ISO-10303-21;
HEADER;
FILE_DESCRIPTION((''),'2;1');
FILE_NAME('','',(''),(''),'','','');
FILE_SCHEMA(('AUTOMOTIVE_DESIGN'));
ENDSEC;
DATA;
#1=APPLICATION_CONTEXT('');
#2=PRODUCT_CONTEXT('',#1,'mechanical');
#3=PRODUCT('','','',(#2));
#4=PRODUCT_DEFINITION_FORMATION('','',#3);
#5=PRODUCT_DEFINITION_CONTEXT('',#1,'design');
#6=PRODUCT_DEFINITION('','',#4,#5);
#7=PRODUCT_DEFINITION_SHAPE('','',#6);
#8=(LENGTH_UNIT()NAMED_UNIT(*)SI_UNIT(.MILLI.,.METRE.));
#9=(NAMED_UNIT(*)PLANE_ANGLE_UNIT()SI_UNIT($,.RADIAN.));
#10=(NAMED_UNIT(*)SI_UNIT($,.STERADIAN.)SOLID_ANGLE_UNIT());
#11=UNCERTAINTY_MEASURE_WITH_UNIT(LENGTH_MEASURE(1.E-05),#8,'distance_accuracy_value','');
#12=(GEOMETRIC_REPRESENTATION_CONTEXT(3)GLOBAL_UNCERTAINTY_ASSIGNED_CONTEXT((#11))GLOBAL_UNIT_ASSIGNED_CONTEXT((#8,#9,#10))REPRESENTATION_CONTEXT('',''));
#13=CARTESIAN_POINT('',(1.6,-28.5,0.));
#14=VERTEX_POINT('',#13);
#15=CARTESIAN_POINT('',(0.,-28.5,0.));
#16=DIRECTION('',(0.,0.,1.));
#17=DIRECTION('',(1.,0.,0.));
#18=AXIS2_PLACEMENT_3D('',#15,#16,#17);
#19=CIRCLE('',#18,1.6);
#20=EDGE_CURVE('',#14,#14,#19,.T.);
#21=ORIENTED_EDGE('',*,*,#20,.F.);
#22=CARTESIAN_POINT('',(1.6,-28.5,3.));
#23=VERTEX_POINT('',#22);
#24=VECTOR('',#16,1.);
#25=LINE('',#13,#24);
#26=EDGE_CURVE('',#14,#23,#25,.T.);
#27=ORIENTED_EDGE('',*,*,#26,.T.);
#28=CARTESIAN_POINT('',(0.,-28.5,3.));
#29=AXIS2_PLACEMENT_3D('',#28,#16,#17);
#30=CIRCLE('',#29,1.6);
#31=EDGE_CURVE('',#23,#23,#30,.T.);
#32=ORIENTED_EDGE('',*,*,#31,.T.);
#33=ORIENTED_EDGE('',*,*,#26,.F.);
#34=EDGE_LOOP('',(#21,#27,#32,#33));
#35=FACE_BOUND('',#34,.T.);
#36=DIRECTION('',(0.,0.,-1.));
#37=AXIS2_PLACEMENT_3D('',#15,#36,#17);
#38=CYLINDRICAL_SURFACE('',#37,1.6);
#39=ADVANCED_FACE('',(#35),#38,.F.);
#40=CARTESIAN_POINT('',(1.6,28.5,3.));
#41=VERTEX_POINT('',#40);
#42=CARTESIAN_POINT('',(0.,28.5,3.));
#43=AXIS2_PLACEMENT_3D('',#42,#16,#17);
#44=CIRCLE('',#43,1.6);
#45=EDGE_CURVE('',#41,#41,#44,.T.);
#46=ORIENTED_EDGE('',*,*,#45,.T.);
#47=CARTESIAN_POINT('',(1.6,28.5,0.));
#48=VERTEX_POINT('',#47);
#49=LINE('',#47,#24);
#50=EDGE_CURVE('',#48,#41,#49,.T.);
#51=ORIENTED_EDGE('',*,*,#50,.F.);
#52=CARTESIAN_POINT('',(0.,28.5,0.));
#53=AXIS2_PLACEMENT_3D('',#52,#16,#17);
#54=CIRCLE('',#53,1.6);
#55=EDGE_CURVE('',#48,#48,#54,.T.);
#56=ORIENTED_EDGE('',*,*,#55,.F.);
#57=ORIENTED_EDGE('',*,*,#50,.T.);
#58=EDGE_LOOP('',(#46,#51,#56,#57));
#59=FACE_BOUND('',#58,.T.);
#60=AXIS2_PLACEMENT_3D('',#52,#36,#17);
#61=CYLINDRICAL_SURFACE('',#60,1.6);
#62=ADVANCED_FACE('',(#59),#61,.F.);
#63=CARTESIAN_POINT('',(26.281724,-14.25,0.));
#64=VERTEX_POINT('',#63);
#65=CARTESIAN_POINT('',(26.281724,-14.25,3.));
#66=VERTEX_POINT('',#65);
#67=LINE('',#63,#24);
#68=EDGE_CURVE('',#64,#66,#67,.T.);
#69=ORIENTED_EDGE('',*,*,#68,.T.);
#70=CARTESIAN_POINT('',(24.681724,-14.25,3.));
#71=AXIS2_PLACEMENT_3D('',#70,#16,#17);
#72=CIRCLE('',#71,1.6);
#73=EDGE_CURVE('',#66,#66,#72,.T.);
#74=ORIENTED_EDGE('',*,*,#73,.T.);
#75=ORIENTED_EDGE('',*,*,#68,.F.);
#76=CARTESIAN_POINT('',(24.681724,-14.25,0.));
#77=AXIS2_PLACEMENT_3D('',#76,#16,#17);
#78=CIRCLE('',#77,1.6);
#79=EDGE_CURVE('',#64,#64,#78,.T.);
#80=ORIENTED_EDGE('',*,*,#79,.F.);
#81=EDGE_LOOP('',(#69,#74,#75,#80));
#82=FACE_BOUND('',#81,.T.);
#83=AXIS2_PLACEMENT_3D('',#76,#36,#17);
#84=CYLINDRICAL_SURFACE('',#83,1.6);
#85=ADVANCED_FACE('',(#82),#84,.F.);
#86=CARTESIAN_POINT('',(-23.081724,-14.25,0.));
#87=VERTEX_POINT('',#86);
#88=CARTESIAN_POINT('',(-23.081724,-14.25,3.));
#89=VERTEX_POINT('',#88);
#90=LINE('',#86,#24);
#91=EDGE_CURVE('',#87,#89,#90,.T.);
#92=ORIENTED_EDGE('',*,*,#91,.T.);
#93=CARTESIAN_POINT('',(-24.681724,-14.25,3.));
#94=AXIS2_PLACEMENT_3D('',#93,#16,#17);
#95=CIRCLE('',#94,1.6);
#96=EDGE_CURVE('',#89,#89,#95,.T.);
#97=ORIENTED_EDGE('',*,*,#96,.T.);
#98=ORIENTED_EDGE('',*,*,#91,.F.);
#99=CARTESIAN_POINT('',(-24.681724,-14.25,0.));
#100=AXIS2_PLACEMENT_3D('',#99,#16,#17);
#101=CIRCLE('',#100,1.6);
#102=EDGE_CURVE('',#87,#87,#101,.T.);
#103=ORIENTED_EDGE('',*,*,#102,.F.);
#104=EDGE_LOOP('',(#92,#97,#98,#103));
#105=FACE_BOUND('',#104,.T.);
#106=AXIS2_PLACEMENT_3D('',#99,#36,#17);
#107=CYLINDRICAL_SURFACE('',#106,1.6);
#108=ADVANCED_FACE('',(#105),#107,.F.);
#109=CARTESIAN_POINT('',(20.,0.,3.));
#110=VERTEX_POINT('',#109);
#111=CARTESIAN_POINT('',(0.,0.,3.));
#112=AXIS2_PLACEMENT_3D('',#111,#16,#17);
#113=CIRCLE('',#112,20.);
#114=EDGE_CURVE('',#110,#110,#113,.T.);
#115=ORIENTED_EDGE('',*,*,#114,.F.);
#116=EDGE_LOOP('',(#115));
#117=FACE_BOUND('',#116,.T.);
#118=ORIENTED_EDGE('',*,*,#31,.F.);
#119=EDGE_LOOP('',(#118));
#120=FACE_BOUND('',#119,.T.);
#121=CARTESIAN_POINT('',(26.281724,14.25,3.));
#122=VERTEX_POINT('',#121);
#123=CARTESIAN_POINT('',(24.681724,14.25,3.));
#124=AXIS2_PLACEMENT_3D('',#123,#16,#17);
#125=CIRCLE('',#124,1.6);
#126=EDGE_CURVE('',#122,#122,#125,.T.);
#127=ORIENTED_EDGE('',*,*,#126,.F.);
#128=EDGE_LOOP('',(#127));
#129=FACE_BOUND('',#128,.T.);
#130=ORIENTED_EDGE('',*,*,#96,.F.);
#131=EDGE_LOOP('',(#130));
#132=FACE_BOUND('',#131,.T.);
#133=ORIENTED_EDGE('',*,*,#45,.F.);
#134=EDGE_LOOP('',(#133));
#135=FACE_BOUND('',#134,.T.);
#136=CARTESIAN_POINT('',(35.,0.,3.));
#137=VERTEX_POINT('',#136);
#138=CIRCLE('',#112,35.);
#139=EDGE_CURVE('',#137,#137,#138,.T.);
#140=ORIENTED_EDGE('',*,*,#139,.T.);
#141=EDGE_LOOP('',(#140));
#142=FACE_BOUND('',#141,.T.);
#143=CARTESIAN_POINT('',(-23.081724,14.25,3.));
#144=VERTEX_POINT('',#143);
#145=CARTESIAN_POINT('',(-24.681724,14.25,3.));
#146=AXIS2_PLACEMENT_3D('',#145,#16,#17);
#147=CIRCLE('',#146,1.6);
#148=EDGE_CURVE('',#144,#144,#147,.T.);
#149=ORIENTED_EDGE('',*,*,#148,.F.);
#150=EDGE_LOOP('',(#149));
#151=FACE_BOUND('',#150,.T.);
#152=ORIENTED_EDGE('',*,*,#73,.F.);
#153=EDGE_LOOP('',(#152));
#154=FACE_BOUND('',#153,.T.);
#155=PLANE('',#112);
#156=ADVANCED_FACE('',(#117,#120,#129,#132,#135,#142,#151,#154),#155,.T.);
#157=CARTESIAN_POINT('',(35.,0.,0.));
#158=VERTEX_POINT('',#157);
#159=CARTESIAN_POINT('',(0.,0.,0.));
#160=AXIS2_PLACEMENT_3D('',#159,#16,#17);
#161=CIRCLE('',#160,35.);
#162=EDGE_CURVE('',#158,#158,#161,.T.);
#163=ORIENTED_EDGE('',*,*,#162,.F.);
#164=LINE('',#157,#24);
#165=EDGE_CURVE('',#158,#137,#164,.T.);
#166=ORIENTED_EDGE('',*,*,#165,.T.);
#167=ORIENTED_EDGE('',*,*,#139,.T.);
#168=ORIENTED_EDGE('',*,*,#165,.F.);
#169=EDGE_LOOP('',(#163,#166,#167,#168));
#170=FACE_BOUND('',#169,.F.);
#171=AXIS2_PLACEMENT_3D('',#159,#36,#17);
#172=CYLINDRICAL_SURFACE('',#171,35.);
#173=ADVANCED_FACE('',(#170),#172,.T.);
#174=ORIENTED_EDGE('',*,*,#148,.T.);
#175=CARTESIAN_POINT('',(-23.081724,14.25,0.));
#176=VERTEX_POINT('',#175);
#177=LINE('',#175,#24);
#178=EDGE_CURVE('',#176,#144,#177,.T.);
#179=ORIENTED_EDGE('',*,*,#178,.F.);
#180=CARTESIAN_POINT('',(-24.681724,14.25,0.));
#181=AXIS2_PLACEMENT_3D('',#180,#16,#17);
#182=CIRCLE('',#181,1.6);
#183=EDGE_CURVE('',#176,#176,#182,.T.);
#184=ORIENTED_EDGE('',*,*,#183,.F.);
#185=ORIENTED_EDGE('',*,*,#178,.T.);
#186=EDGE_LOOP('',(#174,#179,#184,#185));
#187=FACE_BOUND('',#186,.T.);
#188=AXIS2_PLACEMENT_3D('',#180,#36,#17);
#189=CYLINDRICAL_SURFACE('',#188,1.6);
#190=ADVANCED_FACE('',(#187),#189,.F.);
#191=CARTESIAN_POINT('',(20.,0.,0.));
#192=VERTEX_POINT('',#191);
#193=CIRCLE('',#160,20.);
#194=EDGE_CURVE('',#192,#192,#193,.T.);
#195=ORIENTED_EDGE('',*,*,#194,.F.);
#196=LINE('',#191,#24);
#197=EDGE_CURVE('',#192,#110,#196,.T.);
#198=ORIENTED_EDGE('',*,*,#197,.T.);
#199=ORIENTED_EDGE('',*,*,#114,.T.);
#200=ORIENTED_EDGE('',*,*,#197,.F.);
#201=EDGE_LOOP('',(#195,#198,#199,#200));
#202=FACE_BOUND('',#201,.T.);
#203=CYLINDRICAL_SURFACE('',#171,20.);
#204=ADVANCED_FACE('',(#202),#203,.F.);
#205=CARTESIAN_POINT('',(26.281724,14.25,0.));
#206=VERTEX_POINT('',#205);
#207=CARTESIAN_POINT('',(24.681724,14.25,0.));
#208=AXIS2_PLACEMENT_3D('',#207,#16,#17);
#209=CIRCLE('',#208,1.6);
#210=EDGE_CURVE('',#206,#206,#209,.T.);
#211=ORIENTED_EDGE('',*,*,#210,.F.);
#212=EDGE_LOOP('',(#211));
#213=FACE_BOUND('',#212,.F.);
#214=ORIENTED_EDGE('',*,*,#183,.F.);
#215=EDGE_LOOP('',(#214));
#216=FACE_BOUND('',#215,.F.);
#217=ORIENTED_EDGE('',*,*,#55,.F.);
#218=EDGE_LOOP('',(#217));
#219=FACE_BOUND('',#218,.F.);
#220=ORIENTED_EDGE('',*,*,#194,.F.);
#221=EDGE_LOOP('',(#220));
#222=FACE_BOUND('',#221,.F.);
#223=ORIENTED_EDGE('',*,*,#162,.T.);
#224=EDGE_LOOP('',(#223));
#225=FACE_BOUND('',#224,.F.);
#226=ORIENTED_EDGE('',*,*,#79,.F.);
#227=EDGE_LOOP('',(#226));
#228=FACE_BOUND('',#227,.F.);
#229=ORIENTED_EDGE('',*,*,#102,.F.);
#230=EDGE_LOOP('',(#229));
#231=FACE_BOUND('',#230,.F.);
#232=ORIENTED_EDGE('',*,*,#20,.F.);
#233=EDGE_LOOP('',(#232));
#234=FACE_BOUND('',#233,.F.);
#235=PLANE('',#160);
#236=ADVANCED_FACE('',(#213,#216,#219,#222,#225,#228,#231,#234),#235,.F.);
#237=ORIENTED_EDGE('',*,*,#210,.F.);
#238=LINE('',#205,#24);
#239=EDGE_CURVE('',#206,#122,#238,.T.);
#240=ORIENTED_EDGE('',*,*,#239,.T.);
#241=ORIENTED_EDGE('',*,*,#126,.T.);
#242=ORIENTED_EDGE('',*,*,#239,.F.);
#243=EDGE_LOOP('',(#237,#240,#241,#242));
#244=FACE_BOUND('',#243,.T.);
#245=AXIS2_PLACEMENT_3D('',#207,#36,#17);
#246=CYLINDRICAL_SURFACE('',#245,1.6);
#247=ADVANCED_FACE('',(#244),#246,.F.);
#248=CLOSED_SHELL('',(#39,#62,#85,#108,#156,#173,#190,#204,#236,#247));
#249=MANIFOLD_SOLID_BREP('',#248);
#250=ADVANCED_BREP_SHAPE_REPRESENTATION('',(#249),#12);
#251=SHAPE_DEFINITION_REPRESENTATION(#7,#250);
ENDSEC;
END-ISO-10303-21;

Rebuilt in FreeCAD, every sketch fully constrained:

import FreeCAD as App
import Part
import Sketcher
from FreeCAD import Vector

doc = App.newDocument("Part")
params = doc.addObject("Spreadsheet::Sheet", "Params")
for row, (alias, value) in enumerate([
    ("sketch1_diameter", "45 mm"),
    ("sketch1_diameter2", "40 mm"),
    ("pad1_length", "3 mm"),
    ("sketch2_diameter", "70 mm"),
    ("sketch2_diameter2", "45 mm"),
    ("sketch2_diameter3", "3.2 mm"),
    ("pad2_length", "3 mm"),
], start=1):
    params.set(f"A{row}", alias)
    params.set(f"B{row}", "=" + value)
    params.setAlias(f"B{row}", alias)

body = doc.addObject("PartDesign::Body", "Body")

# Sketch on XY plane
sketch1 = doc.addObject("Sketcher::SketchObject", "Sketch")
body.addObject(sketch1)
sketch1.AttachmentSupport = (doc.XY_Plane, [""])
sketch1.MapMode = "FlatFace"
sketch1.addGeometry([
    Part.Circle(Vector(0, 0, 0), Vector(0, 0, 1), 22.5),
    Part.Circle(Vector(0, 0, 0), Vector(0, 0, 1), 20),
], False)
sketch1.addConstraint([
    Sketcher.Constraint("Coincident", 0, 3, -1, 1),
    Sketcher.Constraint("Coincident", 1, 3, -1, 1),
    Sketcher.Constraint("Diameter", 0, 45.0),
    Sketcher.Constraint("Diameter", 1, 40.0),
])
sketch1.setExpression("Constraints[2]", "Params.sketch1_diameter")
sketch1.setExpression("Constraints[3]", "Params.sketch1_diameter2")
pad1 = doc.addObject("PartDesign::Pad", "Pad")
body.addObject(pad1)
pad1.Profile = sketch1
pad1.setExpression("Length", "Params.pad1_length")

# Sketch on XY plane
sketch2 = doc.addObject("Sketcher::SketchObject", "Sketch001")
body.addObject(sketch2)
sketch2.AttachmentSupport = (doc.XY_Plane, [""])
sketch2.MapMode = "FlatFace"
sketch2.addGeometry([
    Part.Circle(Vector(0, 0, 0), Vector(0, 0, 1), 35),  # 0
    Part.Circle(Vector(-24.681724, -14.25, 0), Vector(0, 0, 1), 1.6),  # 1
    Part.Circle(Vector(0, -28.5, 0), Vector(0, 0, 1), 1.6),  # 2
    Part.Circle(Vector(0, 0, 0), Vector(0, 0, 1), 22.5),  # 3
    Part.Circle(Vector(24.681724, -14.25, 0), Vector(0, 0, 1), 1.6),  # 4
    Part.Circle(Vector(-24.681724, 14.25, 0), Vector(0, 0, 1), 1.6),  # 5
    Part.Circle(Vector(24.681724, 14.25, 0), Vector(0, 0, 1), 1.6),  # 6
    Part.Circle(Vector(0, 28.5, 0), Vector(0, 0, 1), 1.6),  # 7
], False)
sketch2.addConstraint([
    Sketcher.Constraint("Coincident", 0, 3, -1, 1),
    Sketcher.Constraint("Coincident", 3, 3, -1, 1),
    Sketcher.Constraint("Equal", 1, 2),
    Sketcher.Constraint("Equal", 2, 4),
    Sketcher.Constraint("Equal", 4, 5),
    Sketcher.Constraint("Equal", 5, 6),
    Sketcher.Constraint("Equal", 6, 7),
    Sketcher.Constraint("Symmetric", 4, 3, 5, 3, -1, 1),
    Sketcher.Constraint("Symmetric", 1, 3, 6, 3, -1, 1),
    Sketcher.Constraint("Symmetric", 2, 3, 7, 3, -1, 1),
    Sketcher.Constraint("Symmetric", 1, 3, 4, 3, -2),
    Sketcher.Constraint("PointOnObject", 2, 3, -2),
    Sketcher.Constraint("Diameter", 0, 70.0),
    Sketcher.Constraint("Diameter", 3, 45.0),
    Sketcher.Constraint("Diameter", 1, 3.2),
    Sketcher.Constraint("DistanceY", 2, 3, -1, 1, 28.5),
    Sketcher.Constraint("DistanceY", 1, 3, 5, 3, 28.5),
    Sketcher.Constraint("DistanceX", 1, 3, -1, 1, 24.681724),
])
sketch2.setExpression("Constraints[12]", "Params.sketch2_diameter")
sketch2.setExpression("Constraints[13]", "Params.sketch2_diameter2")
sketch2.setExpression("Constraints[14]", "Params.sketch2_diameter3")
pad2 = doc.addObject("PartDesign::Pad", "Pad001")
body.addObject(pad2)
pad2.Profile = sketch2
pad2.setExpression("Length", "Params.pad2_length")

doc.recompute()
